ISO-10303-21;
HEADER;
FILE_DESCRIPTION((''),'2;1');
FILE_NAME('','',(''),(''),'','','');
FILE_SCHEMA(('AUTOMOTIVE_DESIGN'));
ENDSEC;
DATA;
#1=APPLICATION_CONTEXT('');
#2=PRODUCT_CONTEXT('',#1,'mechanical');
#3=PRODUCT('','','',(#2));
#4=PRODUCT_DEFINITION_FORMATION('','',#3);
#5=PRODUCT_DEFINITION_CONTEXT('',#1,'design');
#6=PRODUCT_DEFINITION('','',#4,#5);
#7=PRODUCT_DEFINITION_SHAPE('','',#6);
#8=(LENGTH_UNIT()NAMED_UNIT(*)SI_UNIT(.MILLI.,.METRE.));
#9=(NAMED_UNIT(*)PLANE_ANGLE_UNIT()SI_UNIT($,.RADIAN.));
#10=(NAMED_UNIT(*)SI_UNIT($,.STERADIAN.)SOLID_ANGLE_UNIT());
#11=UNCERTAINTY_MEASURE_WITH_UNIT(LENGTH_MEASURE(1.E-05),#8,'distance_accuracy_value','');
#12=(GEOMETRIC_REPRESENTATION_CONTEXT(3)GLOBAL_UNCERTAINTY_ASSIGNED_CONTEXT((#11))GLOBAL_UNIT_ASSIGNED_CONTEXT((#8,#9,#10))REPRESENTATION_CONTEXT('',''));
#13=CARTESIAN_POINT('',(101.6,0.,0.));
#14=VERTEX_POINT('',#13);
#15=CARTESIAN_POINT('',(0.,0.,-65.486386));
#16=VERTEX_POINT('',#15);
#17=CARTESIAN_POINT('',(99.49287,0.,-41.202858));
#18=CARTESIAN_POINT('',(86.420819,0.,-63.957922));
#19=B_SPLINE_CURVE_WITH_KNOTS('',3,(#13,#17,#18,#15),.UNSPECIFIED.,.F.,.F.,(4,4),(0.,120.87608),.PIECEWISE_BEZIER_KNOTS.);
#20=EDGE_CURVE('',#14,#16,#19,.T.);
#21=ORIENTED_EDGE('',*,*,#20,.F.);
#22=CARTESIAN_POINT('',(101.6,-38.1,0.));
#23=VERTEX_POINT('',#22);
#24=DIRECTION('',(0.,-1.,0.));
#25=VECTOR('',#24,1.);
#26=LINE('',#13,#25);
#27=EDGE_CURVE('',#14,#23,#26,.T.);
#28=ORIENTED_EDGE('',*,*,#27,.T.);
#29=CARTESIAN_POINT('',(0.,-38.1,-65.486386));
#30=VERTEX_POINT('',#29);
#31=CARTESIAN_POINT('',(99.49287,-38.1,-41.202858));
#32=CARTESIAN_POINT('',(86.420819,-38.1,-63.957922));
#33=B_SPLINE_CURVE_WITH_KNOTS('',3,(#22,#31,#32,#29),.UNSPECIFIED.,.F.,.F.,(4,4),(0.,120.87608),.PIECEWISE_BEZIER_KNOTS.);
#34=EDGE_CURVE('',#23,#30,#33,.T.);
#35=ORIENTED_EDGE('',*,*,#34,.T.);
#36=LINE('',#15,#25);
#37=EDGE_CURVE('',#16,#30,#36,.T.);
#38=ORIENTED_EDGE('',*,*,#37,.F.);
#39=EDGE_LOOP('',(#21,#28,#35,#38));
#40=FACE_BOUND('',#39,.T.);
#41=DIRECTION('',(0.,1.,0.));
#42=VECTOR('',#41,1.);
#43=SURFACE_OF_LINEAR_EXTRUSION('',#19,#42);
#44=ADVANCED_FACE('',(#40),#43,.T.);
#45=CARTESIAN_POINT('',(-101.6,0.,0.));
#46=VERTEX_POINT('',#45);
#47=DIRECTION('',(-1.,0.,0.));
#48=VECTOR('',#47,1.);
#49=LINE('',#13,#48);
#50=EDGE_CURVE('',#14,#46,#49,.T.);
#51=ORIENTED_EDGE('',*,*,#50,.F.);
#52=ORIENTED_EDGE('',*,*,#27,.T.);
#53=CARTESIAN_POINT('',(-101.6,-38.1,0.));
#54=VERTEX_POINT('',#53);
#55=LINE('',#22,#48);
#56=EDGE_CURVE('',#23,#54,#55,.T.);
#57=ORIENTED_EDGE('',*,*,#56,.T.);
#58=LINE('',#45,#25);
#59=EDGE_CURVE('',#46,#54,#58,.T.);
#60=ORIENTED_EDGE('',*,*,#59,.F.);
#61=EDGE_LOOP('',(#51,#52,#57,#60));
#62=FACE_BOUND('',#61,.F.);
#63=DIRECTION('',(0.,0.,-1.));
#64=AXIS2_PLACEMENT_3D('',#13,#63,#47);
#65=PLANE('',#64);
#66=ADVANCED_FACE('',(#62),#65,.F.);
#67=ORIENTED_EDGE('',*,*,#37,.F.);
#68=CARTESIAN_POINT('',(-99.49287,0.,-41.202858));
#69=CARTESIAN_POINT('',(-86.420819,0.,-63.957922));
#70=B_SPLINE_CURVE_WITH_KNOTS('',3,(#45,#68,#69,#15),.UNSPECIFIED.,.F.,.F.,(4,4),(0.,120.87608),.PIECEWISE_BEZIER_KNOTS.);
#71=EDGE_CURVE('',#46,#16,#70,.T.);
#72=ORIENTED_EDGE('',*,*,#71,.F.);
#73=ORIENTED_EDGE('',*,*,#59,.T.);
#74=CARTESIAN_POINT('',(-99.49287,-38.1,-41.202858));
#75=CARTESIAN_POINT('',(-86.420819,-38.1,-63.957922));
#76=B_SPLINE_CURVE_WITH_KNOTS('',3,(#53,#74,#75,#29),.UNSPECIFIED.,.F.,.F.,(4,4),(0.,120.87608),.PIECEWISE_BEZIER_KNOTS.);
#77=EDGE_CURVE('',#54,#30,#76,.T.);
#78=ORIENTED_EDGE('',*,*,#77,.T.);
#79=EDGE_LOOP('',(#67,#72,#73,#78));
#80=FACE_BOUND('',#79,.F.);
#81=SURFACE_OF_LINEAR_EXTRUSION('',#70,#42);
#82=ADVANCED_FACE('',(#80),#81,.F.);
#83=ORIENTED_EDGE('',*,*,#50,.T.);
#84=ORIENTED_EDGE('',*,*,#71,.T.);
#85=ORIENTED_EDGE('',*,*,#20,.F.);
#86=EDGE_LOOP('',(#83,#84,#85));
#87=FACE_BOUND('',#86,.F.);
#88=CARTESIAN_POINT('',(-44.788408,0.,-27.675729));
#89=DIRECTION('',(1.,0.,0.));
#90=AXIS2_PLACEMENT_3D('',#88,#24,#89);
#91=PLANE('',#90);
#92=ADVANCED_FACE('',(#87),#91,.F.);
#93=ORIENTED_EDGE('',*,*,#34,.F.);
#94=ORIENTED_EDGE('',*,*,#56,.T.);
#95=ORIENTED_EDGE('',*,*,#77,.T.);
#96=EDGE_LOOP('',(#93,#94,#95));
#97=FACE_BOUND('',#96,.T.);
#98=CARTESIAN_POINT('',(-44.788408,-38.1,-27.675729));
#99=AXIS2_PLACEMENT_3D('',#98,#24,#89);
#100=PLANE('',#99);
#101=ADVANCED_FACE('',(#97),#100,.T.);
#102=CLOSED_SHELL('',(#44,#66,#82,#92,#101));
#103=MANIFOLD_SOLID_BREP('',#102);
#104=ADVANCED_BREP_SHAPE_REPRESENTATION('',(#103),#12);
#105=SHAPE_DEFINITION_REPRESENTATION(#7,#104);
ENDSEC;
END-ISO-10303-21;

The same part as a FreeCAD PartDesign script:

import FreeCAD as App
import Part
import Sketcher

V = App.Vector
Q = App.Units.Quantity

doc = App.newDocument("Part")
body = doc.addObject("PartDesign::Body", "Body")

# Sketch on XZ plane
sketch1 = doc.addObject("Sketcher::SketchObject", "Sketch")
body.addObject(sketch1)
sketch1.AttachmentSupport = (doc.XZ_Plane, [""])
sketch1.MapMode = "FlatFace"
sketch1.addGeometry([
    Part.BSplineCurve([V(-101.6, 0, 0), V(-99.49287, -41.202858, 0), V(-86.420819, -63.957922, 0), V(0, -65.486386, 0)], [4, 4], [0, 120.87608], False, 3, [1, 1, 1, 1], False),
    Part.BSplineCurve([V(101.6, 0, 0), V(99.49287, -41.202858, 0), V(86.420819, -63.957922, 0), V(0, -65.486386, 0)], [4, 4], [0, 120.87608], False, 3, [1, 1, 1, 1], False),
    Part.LineSegment(V(101.6, 0, 0), V(-101.6, 0, 0)),
], False)
sketch1.addConstraint([
    Sketcher.Constraint("Block", 0),
    Sketcher.Constraint("Block", 1),
    Sketcher.Constraint("Coincident", 1, 1, 2, 1),
    Sketcher.Constraint("Coincident", 2, 2, 0, 1),
])
pad1 = doc.addObject("PartDesign::Pad", "Pad")
body.addObject(pad1)
pad1.Profile = sketch1
pad1.Length = Q("1.5 in")

doc.recompute()
